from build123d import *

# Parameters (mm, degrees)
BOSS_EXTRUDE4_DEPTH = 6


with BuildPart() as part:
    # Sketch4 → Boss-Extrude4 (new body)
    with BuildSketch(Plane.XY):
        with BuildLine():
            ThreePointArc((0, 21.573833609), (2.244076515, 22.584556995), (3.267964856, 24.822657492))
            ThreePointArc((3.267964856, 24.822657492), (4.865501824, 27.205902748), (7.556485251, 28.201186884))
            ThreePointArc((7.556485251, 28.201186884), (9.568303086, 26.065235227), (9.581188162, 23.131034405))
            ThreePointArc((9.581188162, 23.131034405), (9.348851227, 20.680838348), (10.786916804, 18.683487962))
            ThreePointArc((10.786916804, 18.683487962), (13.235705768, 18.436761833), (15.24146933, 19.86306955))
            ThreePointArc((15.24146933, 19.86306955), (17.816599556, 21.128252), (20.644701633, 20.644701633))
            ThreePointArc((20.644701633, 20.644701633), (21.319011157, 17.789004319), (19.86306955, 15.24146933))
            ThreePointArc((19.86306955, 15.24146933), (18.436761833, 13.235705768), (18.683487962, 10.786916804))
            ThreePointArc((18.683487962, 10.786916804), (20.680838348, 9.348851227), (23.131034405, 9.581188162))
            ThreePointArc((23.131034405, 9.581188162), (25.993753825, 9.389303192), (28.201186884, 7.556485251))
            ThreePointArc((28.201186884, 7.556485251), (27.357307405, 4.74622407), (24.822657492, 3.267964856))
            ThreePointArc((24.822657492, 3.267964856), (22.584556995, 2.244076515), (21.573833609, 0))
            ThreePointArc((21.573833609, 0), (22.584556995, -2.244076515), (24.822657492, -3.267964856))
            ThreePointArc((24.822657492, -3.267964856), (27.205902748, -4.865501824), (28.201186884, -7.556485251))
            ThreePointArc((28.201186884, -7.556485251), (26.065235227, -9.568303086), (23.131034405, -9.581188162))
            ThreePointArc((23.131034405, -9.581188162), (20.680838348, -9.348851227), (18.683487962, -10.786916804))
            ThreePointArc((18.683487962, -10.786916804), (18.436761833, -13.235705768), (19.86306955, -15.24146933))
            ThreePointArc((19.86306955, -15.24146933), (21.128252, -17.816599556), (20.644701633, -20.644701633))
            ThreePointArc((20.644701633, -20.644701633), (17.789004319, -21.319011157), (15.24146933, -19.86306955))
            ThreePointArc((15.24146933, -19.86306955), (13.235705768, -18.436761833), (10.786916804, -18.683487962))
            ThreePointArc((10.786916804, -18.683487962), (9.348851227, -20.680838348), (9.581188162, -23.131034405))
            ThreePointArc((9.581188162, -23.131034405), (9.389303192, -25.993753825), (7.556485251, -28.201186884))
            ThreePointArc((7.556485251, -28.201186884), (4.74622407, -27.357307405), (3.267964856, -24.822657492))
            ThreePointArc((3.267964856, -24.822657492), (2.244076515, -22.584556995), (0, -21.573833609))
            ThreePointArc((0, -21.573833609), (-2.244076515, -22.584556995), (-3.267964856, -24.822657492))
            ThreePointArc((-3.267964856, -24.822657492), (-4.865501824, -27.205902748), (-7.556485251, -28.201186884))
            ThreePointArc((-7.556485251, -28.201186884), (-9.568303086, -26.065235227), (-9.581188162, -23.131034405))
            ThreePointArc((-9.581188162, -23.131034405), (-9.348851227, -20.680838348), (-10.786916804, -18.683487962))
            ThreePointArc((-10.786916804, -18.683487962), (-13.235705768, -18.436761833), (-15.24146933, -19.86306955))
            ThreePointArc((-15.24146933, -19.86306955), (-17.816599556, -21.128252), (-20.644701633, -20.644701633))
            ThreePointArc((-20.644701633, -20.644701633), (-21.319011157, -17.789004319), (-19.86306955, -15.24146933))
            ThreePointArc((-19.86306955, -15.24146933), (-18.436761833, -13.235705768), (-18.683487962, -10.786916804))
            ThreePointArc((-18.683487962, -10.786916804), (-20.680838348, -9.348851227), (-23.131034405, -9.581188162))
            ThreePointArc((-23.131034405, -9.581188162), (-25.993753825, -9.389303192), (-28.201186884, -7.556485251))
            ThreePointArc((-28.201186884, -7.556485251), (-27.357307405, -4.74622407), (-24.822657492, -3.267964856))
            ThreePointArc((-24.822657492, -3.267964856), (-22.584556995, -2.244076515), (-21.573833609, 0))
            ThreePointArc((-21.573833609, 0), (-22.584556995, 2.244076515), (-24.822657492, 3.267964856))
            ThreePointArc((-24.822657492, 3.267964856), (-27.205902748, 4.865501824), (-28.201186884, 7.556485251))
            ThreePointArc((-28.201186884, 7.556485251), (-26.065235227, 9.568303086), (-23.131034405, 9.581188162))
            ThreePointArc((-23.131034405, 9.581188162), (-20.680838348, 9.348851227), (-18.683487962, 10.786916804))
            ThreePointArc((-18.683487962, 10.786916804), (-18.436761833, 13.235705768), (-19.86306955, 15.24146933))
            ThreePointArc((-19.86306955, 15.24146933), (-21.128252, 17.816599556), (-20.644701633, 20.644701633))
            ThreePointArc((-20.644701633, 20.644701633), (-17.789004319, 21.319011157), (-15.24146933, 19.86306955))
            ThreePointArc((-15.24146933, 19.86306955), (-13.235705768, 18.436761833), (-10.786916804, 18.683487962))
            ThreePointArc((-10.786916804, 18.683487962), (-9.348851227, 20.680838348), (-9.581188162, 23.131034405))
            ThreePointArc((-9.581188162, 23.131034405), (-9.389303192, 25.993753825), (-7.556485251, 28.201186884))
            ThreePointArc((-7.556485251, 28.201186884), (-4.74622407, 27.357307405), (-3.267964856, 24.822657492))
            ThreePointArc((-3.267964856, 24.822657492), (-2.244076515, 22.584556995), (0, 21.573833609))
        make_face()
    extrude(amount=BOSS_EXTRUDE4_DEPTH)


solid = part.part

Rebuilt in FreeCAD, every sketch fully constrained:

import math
import FreeCAD as App
import Part
import Sketcher
from FreeCAD import Vector

doc = App.newDocument("Part")
body = doc.addObject("PartDesign::Body", "Body")

sketch1 = body.newObject("Sketcher::SketchObject", "Sketch")
sketch1.AttachmentSupport = (doc.getObject("XY_Plane"), [""])
sketch1.MapMode = "FlatFace"
sketch1.addGeometry(Part.ArcOfCircle(Part.Circle(Vector(-0.223517, 25.066689, 0), Vector(0, 0, 1), 3.5), math.radians(-86.338478), math.radians(-3.998097)), False)
sketch1.addGeometry(Part.ArcOfCircle(Part.Circle(Vector(0.223517, 25.066689, 0), Vector(0, 0, 1), 3.5), math.radians(-176.001903), math.radians(-93.661522)), False)
sketch1.addGeometry(Part.ArcOfCircle(Part.Circle(Vector(-7.221575, 24.215232, 0), Vector(0, 0, 1), 4), math.radians(8.734519), math.radians(94.802856)), False)
sketch1.addGeometry(Part.ArcOfCircle(Part.Circle(Vector(-5.062632, 24.265951, 0), Vector(0, 0, 1), 4.658904), math.radians(122.363412), math.radians(194.099213)), False)
sketch1.addGeometry(Part.ArcOfCircle(Part.Circle(Vector(-12.726916, 21.596631, 0), Vector(0, 0, 1), 3.5), math.radians(-56.338478), math.radians(26.001903)), False)
sketch1.addGeometry(Part.ArcOfCircle(Part.Circle(Vector(-12.339773, 21.820148, 0), Vector(0, 0, 1), 3.5), math.radians(-146.001903), math.radians(-63.661522)), False)
sketch1.addGeometry(Part.ArcOfCircle(Part.Circle(Vector(-18.361684, 17.360219, 0), Vector(0, 0, 1), 4), math.radians(38.734519), math.radians(124.802856)), False)
sketch1.addGeometry(Part.ArcOfCircle(Part.Circle(Vector(-16.517344, 18.483614, 0), Vector(0, 0, 1), 4.658904), math.radians(152.363412), math.radians(224.099213)), False)
sketch1.addGeometry(Part.ArcOfCircle(Part.Circle(Vector(-21.820148, 12.339773, 0), Vector(0, 0, 1), 3.5), math.radians(-26.338478), math.radians(56.001903)), False)
sketch1.addGeometry(Part.ArcOfCircle(Part.Circle(Vector(-21.596631, 12.726916, 0), Vector(0, 0, 1), 3.5), math.radians(-116.001903), math.radians(-33.661522)), False)
sketch1.addGeometry(Part.ArcOfCircle(Part.Circle(Vector(-24.581794, 5.853549, 0), Vector(0, 0, 1), 4), math.radians(68.734519), math.radians(154.802856)), False)
sketch1.addGeometry(Part.ArcOfCircle(Part.Circle(Vector(-23.546246, 7.748607, 0), Vector(0, 0, 1), 4.658904), math.radians(-177.636588), math.radians(-105.900787)), False)
sketch1.addGeometry(Part.ArcOfCircle(Part.Circle(Vector(-25.066689, -0.223517, 0), Vector(0, 0, 1), 3.5), math.radians(3.661522), math.radians(86.001903)), False)
sketch1.addGeometry(Part.ArcOfCircle(Part.Circle(Vector(-25.066689, 0.223517, 0), Vector(0, 0, 1), 3.5), math.radians(-86.001903), math.radians(-3.661522)), False)
sketch1.addGeometry(Part.ArcOfCircle(Part.Circle(Vector(-24.215232, -7.221575, 0), Vector(0, 0, 1), 4), math.radians(98.734519), math.radians(184.802856)), False)
sketch1.addGeometry(Part.ArcOfCircle(Part.Circle(Vector(-24.265951, -5.062632, 0), Vector(0, 0, 1), 4.658904), math.radians(-147.636588), math.radians(-75.900787)), False)
sketch1.addGeometry(Part.ArcOfCircle(Part.Circle(Vector(-21.596631, -12.726916, 0), Vector(0, 0, 1), 3.5), math.radians(33.661522), math.radians(116.001903)), False)
sketch1.addGeometry(Part.ArcOfCircle(Part.Circle(Vector(-21.820148, -12.339773, 0), Vector(0, 0, 1), 3.5), math.radians(-56.001903), math.radians(26.338478)), False)
sketch1.addGeometry(Part.ArcOfCircle(Part.Circle(Vector(-17.360219, -18.361684, 0), Vector(0, 0, 1), 4), math.radians(128.734519), math.radians(214.802856)), False)
sketch1.addGeometry(Part.ArcOfCircle(Part.Circle(Vector(-18.483614, -16.517344, 0), Vector(0, 0, 1), 4.658904), math.radians(-117.636588), math.radians(-45.900787)), False)
sketch1.addGeometry(Part.ArcOfCircle(Part.Circle(Vector(-12.339773, -21.820148, 0), Vector(0, 0, 1), 3.5), math.radians(63.661522), math.radians(146.001903)), False)
sketch1.addGeometry(Part.ArcOfCircle(Part.Circle(Vector(-12.726916, -21.596631, 0), Vector(0, 0, 1), 3.5), math.radians(-26.001903), math.radians(56.338478)), False)
sketch1.addGeometry(Part.ArcOfCircle(Part.Circle(Vector(-5.853549, -24.581794, 0), Vector(0, 0, 1), 4), math.radians(158.734519), math.radians(244.802856)), False)
sketch1.addGeometry(Part.ArcOfCircle(Part.Circle(Vector(-7.748607, -23.546246, 0), Vector(0, 0, 1), 4.658904), math.radians(-87.636588), math.radians(-15.900787)), False)
sketch1.addGeometry(Part.ArcOfCircle(Part.Circle(Vector(0.223517, -25.066689, 0), Vector(0, 0, 1), 3.5), math.radians(93.661522), math.radians(176.001903)), False)
sketch1.addGeometry(Part.ArcOfCircle(Part.Circle(Vector(-0.223517, -25.066689, 0), Vector(0, 0, 1), 3.5), math.radians(3.998097), math.radians(86.338478)), False)
sketch1.addGeometry(Part.ArcOfCircle(Part.Circle(Vector(7.221575, -24.215232, 0), Vector(0, 0, 1), 4), math.radians(-171.265481), math.radians(-85.197144)), False)
sketch1.addGeometry(Part.ArcOfCircle(Part.Circle(Vector(5.062632, -24.265951, 0), Vector(0, 0, 1), 4.658904), math.radians(-57.636588), math.radians(14.099213)), False)
sketch1.addGeometry(Part.ArcOfCircle(Part.Circle(Vector(12.726916, -21.596631, 0), Vector(0, 0, 1), 3.5), math.radians(123.661522), math.radians(206.001903)), False)
sketch1.addGeometry(Part.ArcOfCircle(Part.Circle(Vector(12.339773, -21.820148, 0), Vector(0, 0, 1), 3.5), math.radians(33.998097), math.radians(116.338478)), False)
sketch1.addGeometry(Part.ArcOfCircle(Part.Circle(Vector(18.361684, -17.360219, 0), Vector(0, 0, 1), 4), math.radians(-141.265481), math.radians(-55.197144)), False)
sketch1.addGeometry(Part.ArcOfCircle(Part.Circle(Vector(16.517344, -18.483614, 0), Vector(0, 0, 1), 4.658904), math.radians(-27.636588), math.radians(44.099213)), False)
sketch1.addGeometry(Part.ArcOfCircle(Part.Circle(Vector(21.820148, -12.339773, 0), Vector(0, 0, 1), 3.5), math.radians(153.661522), math.radians(236.001903)), False)
sketch1.addGeometry(Part.ArcOfCircle(Part.Circle(Vector(21.596631, -12.726916, 0), Vector(0, 0, 1), 3.5), math.radians(63.998097), math.radians(146.338478)), False)
sketch1.addGeometry(Part.ArcOfCircle(Part.Circle(Vector(24.581794, -5.853549, 0), Vector(0, 0, 1), 4), math.radians(-111.265481), math.radians(-25.197144)), False)
sketch1.addGeometry(Part.ArcOfCircle(Part.Circle(Vector(23.546246, -7.748607, 0), Vector(0, 0, 1), 4.658904), math.radians(2.363412), math.radians(74.099213)), False)
sketch1.addGeometry(Part.ArcOfCircle(Part.Circle(Vector(25.066689, 0.223517, 0), Vector(0, 0, 1), 3.5), math.radians(-176.338478), math.radians(-93.998097)), False)
sketch1.addGeometry(Part.ArcOfCircle(Part.Circle(Vector(25.066689, -0.223517, 0), Vector(0, 0, 1), 3.5), math.radians(93.998097), math.radians(176.338478)), False)
sketch1.addGeometry(Part.ArcOfCircle(Part.Circle(Vector(24.215232, 7.221575, 0), Vector(0, 0, 1), 4), math.radians(-81.265481), math.radians(4.802856)), False)
sketch1.addGeometry(Part.ArcOfCircle(Part.Circle(Vector(24.265951, 5.062632, 0), Vector(0, 0, 1), 4.658904), math.radians(32.363412), math.radians(104.099213)), False)
sketch1.addGeometry(Part.ArcOfCircle(Part.Circle(Vector(21.596631, 12.726916, 0), Vector(0, 0, 1), 3.5), math.radians(-146.338478), math.radians(-63.998097)), False)
sketch1.addGeometry(Part.ArcOfCircle(Part.Circle(Vector(21.820148, 12.339773, 0), Vector(0, 0, 1), 3.5), math.radians(123.998097), math.radians(206.338478)), False)
sketch1.addGeometry(Part.ArcOfCircle(Part.Circle(Vector(17.360219, 18.361684, 0), Vector(0, 0, 1), 4), math.radians(-51.265481), math.radians(34.802856)), False)
sketch1.addGeometry(Part.ArcOfCircle(Part.Circle(Vector(18.483614, 16.517344, 0), Vector(0, 0, 1), 4.658904), math.radians(62.363412), math.radians(134.099213)), False)
sketch1.addGeometry(Part.ArcOfCircle(Part.Circle(Vector(12.339773, 21.820148, 0), Vector(0, 0, 1), 3.5), math.radians(-116.338478), math.radians(-33.998097)), False)
sketch1.addGeometry(Part.ArcOfCircle(Part.Circle(Vector(12.726916, 21.596631, 0), Vector(0, 0, 1), 3.5), math.radians(153.998097), math.radians(236.338478)), False)
sketch1.addGeometry(Part.ArcOfCircle(Part.Circle(Vector(5.853549, 24.581794, 0), Vector(0, 0, 1), 4), math.radians(-21.265481), math.radians(64.802856)), False)
sketch1.addGeometry(Part.ArcOfCircle(Part.Circle(Vector(7.748607, 23.546246, 0), Vector(0, 0, 1), 4.658904), math.radians(92.363412), math.radians(164.099213)), False)
sketch1.addConstraint(Sketcher.Constraint("Coincident", 0, 1, 1, 2))
sketch1.addConstraint(Sketcher.Constraint("Coincident", 1, 1, 2, 1))
sketch1.addConstraint(Sketcher.Constraint("Coincident", 2, 2, 3, 1))
sketch1.addConstraint(Sketcher.Constraint("Coincident", 3, 2, 4, 2))
sketch1.addConstraint(Sketcher.Constraint("Coincident", 4, 1, 5, 2))
sketch1.addConstraint(Sketcher.Constraint("Coincident", 5, 1, 6, 1))
sketch1.addConstraint(Sketcher.Constraint("Coincident", 6, 2, 7, 1))
sketch1.addConstraint(Sketcher.Constraint("Coincident", 7, 2, 8, 2))
sketch1.addConstraint(Sketcher.Constraint("Coincident", 8, 1, 9, 2))
sketch1.addConstraint(Sketcher.Constraint("Coincident", 9, 1, 10, 1))
sketch1.addConstraint(Sketcher.Constraint("Coincident", 10, 2, 11, 1))
sketch1.addConstraint(Sketcher.Constraint("Coincident", 11, 2, 12, 2))
sketch1.addConstraint(Sketcher.Constraint("Coincident", 12, 1, 13, 2))
sketch1.addConstraint(Sketcher.Constraint("Coincident", 13, 1, 14, 1))
sketch1.addConstraint(Sketcher.Constraint("Coincident", 14, 2, 15, 1))
sketch1.addConstraint(Sketcher.Constraint("Coincident", 15, 2, 16, 2))
sketch1.addConstraint(Sketcher.Constraint("Coincident", 16, 1, 17, 2))
sketch1.addConstraint(Sketcher.Constraint("Coincident", 17, 1, 18, 1))
sketch1.addConstraint(Sketcher.Constraint("Coincident", 18, 2, 19, 1))
sketch1.addConstraint(Sketcher.Constraint("Coincident", 19, 2, 20, 2))
sketch1.addConstraint(Sketcher.Constraint("Coincident", 20, 1, 21, 2))
sketch1.addConstraint(Sketcher.Constraint("Coincident", 21, 1, 22, 1))
sketch1.addConstraint(Sketcher.Constraint("Coincident", 22, 2, 23, 1))
sketch1.addConstraint(Sketcher.Constraint("Coincident", 23, 2, 24, 2))
sketch1.addConstraint(Sketcher.Constraint("Coincident", 24, 1, 25, 2))
sketch1.addConstraint(Sketcher.Constraint("Coincident", 25, 1, 26, 1))
sketch1.addConstraint(Sketcher.Constraint("Coincident", 26, 2, 27, 1))
sketch1.addConstraint(Sketcher.Constraint("Coincident", 27, 2, 28, 2))
sketch1.addConstraint(Sketcher.Constraint("Coincident", 28, 1, 29, 2))
sketch1.addConstraint(Sketcher.Constraint("Coincident", 29, 1, 30, 1))
sketch1.addConstraint(Sketcher.Constraint("Coincident", 30, 2, 31, 1))
sketch1.addConstraint(Sketcher.Constraint("Coincident", 31, 2, 32, 2))
sketch1.addConstraint(Sketcher.Constraint("Coincident", 32, 1, 33, 2))
sketch1.addConstraint(Sketcher.Constraint("Coincident", 33, 1, 34, 1))
sketch1.addConstraint(Sketcher.Constraint("Coincident", 34, 2, 35, 1))
sketch1.addConstraint(Sketcher.Constraint("Coincident", 35, 2, 36, 2))
sketch1.addConstraint(Sketcher.Constraint("Coincident", 36, 1, 37, 2))
sketch1.addConstraint(Sketcher.Constraint("Coincident", 37, 1, 38, 1))
sketch1.addConstraint(Sketcher.Constraint("Coincident", 38, 2, 39, 1))
sketch1.addConstraint(Sketcher.Constraint("Coincident", 39, 2, 40, 2))
sketch1.addConstraint(Sketcher.Constraint("Coincident", 40, 1, 41, 2))
sketch1.addConstraint(Sketcher.Constraint("Coincident", 41, 1, 42, 1))
sketch1.addConstraint(Sketcher.Constraint("Coincident", 42, 2, 43, 1))
sketch1.addConstraint(Sketcher.Constraint("Coincident", 43, 2, 44, 2))
sketch1.addConstraint(Sketcher.Constraint("Coincident", 44, 1, 45, 2))
sketch1.addConstraint(Sketcher.Constraint("Coincident", 45, 1, 46, 1))
sketch1.addConstraint(Sketcher.Constraint("Coincident", 46, 2, 47, 1))
sketch1.addConstraint(Sketcher.Constraint("Coincident", 47, 2, 0, 2))
sketch1.addConstraint(Sketcher.Constraint("PointOnObject", 0, 1, -2))
sketch1.addConstraint(Sketcher.Constraint("PointOnObject", 12, 1, -1))
sketch1.addConstraint(Sketcher.Constraint("PointOnObject", 24, 1, -2))
sketch1.addConstraint(Sketcher.Constraint("PointOnObject", 36, 1, -1))
sketch1.addConstraint(Sketcher.Constraint("Radius", 2, 4.0))
sketch1.addConstraint(Sketcher.Constraint("Radius", 6, 4.0))
sketch1.addConstraint(Sketcher.Constraint("Radius", 10, 4.0))
sketch1.addConstraint(Sketcher.Constraint("Radius", 14, 4.0))
sketch1.addConstraint(Sketcher.Constraint("Radius", 18, 4.0))
sketch1.addConstraint(Sketcher.Constraint("Radius", 22, 4.0))
sketch1.addConstraint(Sketcher.Constraint("Radius", 26, 4.0))
sketch1.addConstraint(Sketcher.Constraint("Radius", 30, 4.0))
sketch1.addConstraint(Sketcher.Constraint("Radius", 34, 4.0))
sketch1.addConstraint(Sketcher.Constraint("Radius", 38, 4.0))
sketch1.addConstraint(Sketcher.Constraint("Radius", 42, 4.0))
sketch1.addConstraint(Sketcher.Constraint("Radius", 46, 4.0))
sketch1.addConstraint(Sketcher.Constraint("Radius", 0, 3.5))
sketch1.addConstraint(Sketcher.Constraint("Radius", 1, 3.5))
sketch1.addConstraint(Sketcher.Constraint("Radius", 4, 3.5))
sketch1.addConstraint(Sketcher.Constraint("Radius", 5, 3.5))
sketch1.addConstraint(Sketcher.Constraint("Radius", 8, 3.5))
sketch1.addConstraint(Sketcher.Constraint("Radius", 9, 3.5))
sketch1.addConstraint(Sketcher.Constraint("Radius", 12, 3.5))
sketch1.addConstraint(Sketcher.Constraint("Radius", 13, 3.5))
sketch1.addConstraint(Sketcher.Constraint("Radius", 16, 3.5))
sketch1.addConstraint(Sketcher.Constraint("Radius", 17, 3.5))
sketch1.addConstraint(Sketcher.Constraint("Radius", 20, 3.5))
sketch1.addConstraint(Sketcher.Constraint("Radius", 21, 3.5))
sketch1.addConstraint(Sketcher.Constraint("Radius", 24, 3.5))
sketch1.addConstraint(Sketcher.Constraint("Radius", 25, 3.5))
sketch1.addConstraint(Sketcher.Constraint("Radius", 28, 3.5))
sketch1.addConstraint(Sketcher.Constraint("Radius", 29, 3.5))
sketch1.addConstraint(Sketcher.Constraint("Radius", 32, 3.5))
sketch1.addConstraint(Sketcher.Constraint("Radius", 33, 3.5))
sketch1.addConstraint(Sketcher.Constraint("Radius", 36, 3.5))
sketch1.addConstraint(Sketcher.Constraint("Radius", 37, 3.5))
sketch1.addConstraint(Sketcher.Constraint("Radius", 40, 3.5))
sketch1.addConstraint(Sketcher.Constraint("Radius", 41, 3.5))
sketch1.addConstraint(Sketcher.Constraint("Radius", 44, 3.5))
sketch1.addConstraint(Sketcher.Constraint("Radius", 45, 3.5))
sketch1.addConstraint(Sketcher.Constraint("Radius", 3, 4.658904))
sketch1.addConstraint(Sketcher.Constraint("Radius", 7, 4.658904))
sketch1.addConstraint(Sketcher.Constraint("Radius", 11, 4.658904))
sketch1.addConstraint(Sketcher.Constraint("Radius", 15, 4.658904))
sketch1.addConstraint(Sketcher.Constraint("Radius", 19, 4.658904))
sketch1.addConstraint(Sketcher.Constraint("Radius", 23, 4.658904))
sketch1.addConstraint(Sketcher.Constraint("Radius", 27, 4.658904))
sketch1.addConstraint(Sketcher.Constraint("Radius", 31, 4.658904))
sketch1.addConstraint(Sketcher.Constraint("Radius", 35, 4.658904))
sketch1.addConstraint(Sketcher.Constraint("Radius", 39, 4.658904))
sketch1.addConstraint(Sketcher.Constraint("Radius", 43, 4.658904))
sketch1.addConstraint(Sketcher.Constraint("Radius", 47, 4.658904))
sketch1.addConstraint(Sketcher.Constraint("DistanceX", 6, 2, -1, 1, 20.644702))
sketch1.addConstraint(Sketcher.Constraint("DistanceY", -1, 1, 6, 2, 20.644702))
sketch1.addConstraint(Sketcher.Constraint("DistanceX", 18, 2, -1, 1, 20.644702))
sketch1.addConstraint(Sketcher.Constraint("DistanceY", 18, 2, -1, 1, 20.644702))
sketch1.addConstraint(Sketcher.Constraint("DistanceX", -1, 1, 30, 2, 20.644702))
sketch1.addConstraint(Sketcher.Constraint("DistanceY", 30, 2, -1, 1, 20.644702))
sketch1.addConstraint(Sketcher.Constraint("DistanceX", -1, 1, 42, 2, 20.644702))
sketch1.addConstraint(Sketcher.Constraint("DistanceY", -1, 1, 42, 2, 20.644702))
sketch1.addConstraint(Sketcher.Constraint("DistanceY", -1, 1, 0, 3, 25.066689))
sketch1.addConstraint(Sketcher.Constraint("DistanceY", -1, 1, 1, 3, 25.066689))
sketch1.addConstraint(Sketcher.Constraint("DistanceY", -1, 1, 3, 3, 24.265951))
sketch1.addConstraint(Sketcher.Constraint("DistanceY", -1, 1, 4, 3, 21.596631))
sketch1.addConstraint(Sketcher.Constraint("DistanceY", -1, 1, 5, 3, 21.820148))
sketch1.addConstraint(Sketcher.Constraint("DistanceY", -1, 1, 6, 3, 17.360219))
sketch1.addConstraint(Sketcher.Constraint("DistanceX", 8, 3, -1, 1, 21.820148))
sketch1.addConstraint(Sketcher.Constraint("DistanceX", 9, 3, -1, 1, 21.596631))
sketch1.addConstraint(Sketcher.Constraint("DistanceY", -1, 1, 10, 3, 5.853549))
sketch1.addConstraint(Sketcher.Constraint("DistanceX", 12, 3, -1, 1, 25.066689))
sketch1.addConstraint(Sketcher.Constraint("DistanceX", 13, 3, -1, 1, 25.066689))
sketch1.addConstraint(Sketcher.Constraint("DistanceX", 15, 3, -1, 1, 24.265951))
sketch1.addConstraint(Sketcher.Constraint("DistanceX", 16, 3, -1, 1, 21.596631))
sketch1.addConstraint(Sketcher.Constraint("DistanceX", 17, 3, -1, 1, 21.820148))
sketch1.addConstraint(Sketcher.Constraint("DistanceX", 18, 3, -1, 1, 17.360219))
sketch1.addConstraint(Sketcher.Constraint("DistanceY", 20, 3, -1, 1, 21.820148))
sketch1.addConstraint(Sketcher.Constraint("DistanceY", 21, 3, -1, 1, 21.596631))
sketch1.addConstraint(Sketcher.Constraint("DistanceX", 22, 3, -1, 1, 5.853549))
sketch1.addConstraint(Sketcher.Constraint("DistanceY", 24, 3, -1, 1, 25.066689))
sketch1.addConstraint(Sketcher.Constraint("DistanceY", 25, 3, -1, 1, 25.066689))
sketch1.addConstraint(Sketcher.Constraint("DistanceY", 27, 3, -1, 1, 24.265951))
sketch1.addConstraint(Sketcher.Constraint("DistanceY", 28, 3, -1, 1, 21.596631))
sketch1.addConstraint(Sketcher.Constraint("DistanceY", 29, 3, -1, 1, 21.820148))
sketch1.addConstraint(Sketcher.Constraint("DistanceY", 30, 3, -1, 1, 17.360219))
sketch1.addConstraint(Sketcher.Constraint("DistanceX", -1, 1, 32, 3, 21.820148))
sketch1.addConstraint(Sketcher.Constraint("DistanceX", -1, 1, 33, 3, 21.596631))
sketch1.addConstraint(Sketcher.Constraint("DistanceY", 34, 3, -1, 1, 5.853549))
sketch1.addConstraint(Sketcher.Constraint("DistanceX", -1, 1, 36, 3, 25.066689))
sketch1.addConstraint(Sketcher.Constraint("DistanceX", -1, 1, 37, 3, 25.066689))
sketch1.addConstraint(Sketcher.Constraint("DistanceX", -1, 1, 39, 3, 24.265951))
sketch1.addConstraint(Sketcher.Constraint("DistanceX", -1, 1, 40, 3, 21.596631))
sketch1.addConstraint(Sketcher.Constraint("DistanceX", -1, 1, 41, 3, 21.820148))
sketch1.addConstraint(Sketcher.Constraint("DistanceX", -1, 1, 42, 3, 17.360219))
sketch1.addConstraint(Sketcher.Constraint("DistanceY", -1, 1, 44, 3, 21.820148))
sketch1.addConstraint(Sketcher.Constraint("DistanceY", -1, 1, 45, 3, 21.596631))
sketch1.addConstraint(Sketcher.Constraint("DistanceX", -1, 1, 46, 3, 5.853549))
sketch1.addConstraint(Sketcher.Constraint("DistanceX", 3, 2, -1, 1, 9.581188))
sketch1.addConstraint(Sketcher.Constraint("DistanceX", 5, 1, -1, 1, 15.241469))
sketch1.addConstraint(Sketcher.Constraint("DistanceX", 7, 2, -1, 1, 19.86307))
sketch1.addConstraint(Sketcher.Constraint("DistanceY", -1, 1, 7, 2, 15.241469))
sketch1.addConstraint(Sketcher.Constraint("DistanceY", -1, 1, 9, 1, 9.581188))
sketch1.addConstraint(Sketcher.Constraint("DistanceY", 15, 2, -1, 1, 9.581188))
sketch1.addConstraint(Sketcher.Constraint("DistanceX", 17, 1, -1, 1, 19.86307))
sketch1.addConstraint(Sketcher.Constraint("DistanceX", 19, 2, -1, 1, 15.241469))
sketch1.addConstraint(Sketcher.Constraint("DistanceY", 19, 2, -1, 1, 19.86307))
sketch1.addConstraint(Sketcher.Constraint("DistanceX", 21, 1, -1, 1, 9.581188))
sketch1.addConstraint(Sketcher.Constraint("DistanceX", -1, 1, 27, 2, 9.581188))
sketch1.addConstraint(Sketcher.Constraint("DistanceX", -1, 1, 29, 1, 15.241469))
sketch1.addConstraint(Sketcher.Constraint("DistanceX", -1, 1, 31, 2, 19.86307))
sketch1.addConstraint(Sketcher.Constraint("DistanceY", 31, 2, -1, 1, 15.241469))
sketch1.addConstraint(Sketcher.Constraint("DistanceY", 33, 1, -1, 1, 9.581188))
sketch1.addConstraint(Sketcher.Constraint("DistanceY", -1, 1, 39, 2, 9.581188))
sketch1.addConstraint(Sketcher.Constraint("DistanceX", -1, 1, 41, 1, 19.86307))
sketch1.addConstraint(Sketcher.Constraint("DistanceX", -1, 1, 43, 2, 15.241469))
sketch1.addConstraint(Sketcher.Constraint("DistanceY", -1, 1, 43, 2, 19.86307))
sketch1.addConstraint(Sketcher.Constraint("DistanceX", -1, 1, 45, 1, 9.581188))
sketch1.addConstraint(Sketcher.Constraint("DistanceX", 0, 3, -1, 1, 0.223517))
sketch1.addConstraint(Sketcher.Constraint("DistanceX", 2, 3, -1, 1, 7.221575))
sketch1.addConstraint(Sketcher.Constraint("DistanceY", -1, 1, 2, 3, 24.215232))
sketch1.addConstraint(Sketcher.Constraint("DistanceX", 3, 3, -1, 1, 5.062632))
sketch1.addConstraint(Sketcher.Constraint("DistanceY", -1, 1, 9, 3, 12.726916))
sketch1.addConstraint(Sketcher.Constraint("DistanceX", 11, 3, -1, 1, 23.546246))
sketch1.addConstraint(Sketcher.Constraint("DistanceY", -1, 1, 11, 3, 7.748607))
sketch1.addConstraint(Sketcher.Constraint("DistanceY", 12, 3, -1, 1, 0.223517))
sketch1.addConstraint(Sketcher.Constraint("DistanceX", 14, 3, -1, 1, 24.215232))
sketch1.addConstraint(Sketcher.Constraint("DistanceY", 14, 3, -1, 1, 7.221575))
sketch1.addConstraint(Sketcher.Constraint("DistanceY", 15, 3, -1, 1, 5.062632))
sketch1.addConstraint(Sketcher.Constraint("DistanceX", 21, 3, -1, 1, 12.726916))
sketch1.addConstraint(Sketcher.Constraint("DistanceX", 23, 3, -1, 1, 7.748607))
sketch1.addConstraint(Sketcher.Constraint("DistanceY", 23, 3, -1, 1, 23.546246))
sketch1.addConstraint(Sketcher.Constraint("DistanceX", -1, 1, 24, 3, 0.223517))
sketch1.addConstraint(Sketcher.Constraint("DistanceX", -1, 1, 26, 3, 7.221575))
sketch1.addConstraint(Sketcher.Constraint("DistanceY", 26, 3, -1, 1, 24.215232))
sketch1.addConstraint(Sketcher.Constraint("DistanceX", -1, 1, 27, 3, 5.062632))
sketch1.addConstraint(Sketcher.Constraint("DistanceY", 33, 3, -1, 1, 12.726916))
sketch1.addConstraint(Sketcher.Constraint("DistanceX", -1, 1, 35, 3, 23.546246))
sketch1.addConstraint(Sketcher.Constraint("DistanceY", 35, 3, -1, 1, 7.748607))
sketch1.addConstraint(Sketcher.Constraint("DistanceY", -1, 1, 36, 3, 0.223517))
sketch1.addConstraint(Sketcher.Constraint("DistanceX", -1, 1, 38, 3, 24.215232))
sketch1.addConstraint(Sketcher.Constraint("DistanceY", -1, 1, 38, 3, 7.221575))
sketch1.addConstraint(Sketcher.Constraint("DistanceY", -1, 1, 39, 3, 5.062632))
sketch1.addConstraint(Sketcher.Constraint("DistanceX", -1, 1, 45, 3, 12.726916))
sketch1.addConstraint(Sketcher.Constraint("DistanceX", -1, 1, 47, 3, 7.748607))
sketch1.addConstraint(Sketcher.Constraint("DistanceY", -1, 1, 47, 3, 23.546246))
pad1 = body.newObject("PartDesign::Pad", "Pad")
pad1.Profile = sketch1
pad1.Length = 6

doc.recompute()
